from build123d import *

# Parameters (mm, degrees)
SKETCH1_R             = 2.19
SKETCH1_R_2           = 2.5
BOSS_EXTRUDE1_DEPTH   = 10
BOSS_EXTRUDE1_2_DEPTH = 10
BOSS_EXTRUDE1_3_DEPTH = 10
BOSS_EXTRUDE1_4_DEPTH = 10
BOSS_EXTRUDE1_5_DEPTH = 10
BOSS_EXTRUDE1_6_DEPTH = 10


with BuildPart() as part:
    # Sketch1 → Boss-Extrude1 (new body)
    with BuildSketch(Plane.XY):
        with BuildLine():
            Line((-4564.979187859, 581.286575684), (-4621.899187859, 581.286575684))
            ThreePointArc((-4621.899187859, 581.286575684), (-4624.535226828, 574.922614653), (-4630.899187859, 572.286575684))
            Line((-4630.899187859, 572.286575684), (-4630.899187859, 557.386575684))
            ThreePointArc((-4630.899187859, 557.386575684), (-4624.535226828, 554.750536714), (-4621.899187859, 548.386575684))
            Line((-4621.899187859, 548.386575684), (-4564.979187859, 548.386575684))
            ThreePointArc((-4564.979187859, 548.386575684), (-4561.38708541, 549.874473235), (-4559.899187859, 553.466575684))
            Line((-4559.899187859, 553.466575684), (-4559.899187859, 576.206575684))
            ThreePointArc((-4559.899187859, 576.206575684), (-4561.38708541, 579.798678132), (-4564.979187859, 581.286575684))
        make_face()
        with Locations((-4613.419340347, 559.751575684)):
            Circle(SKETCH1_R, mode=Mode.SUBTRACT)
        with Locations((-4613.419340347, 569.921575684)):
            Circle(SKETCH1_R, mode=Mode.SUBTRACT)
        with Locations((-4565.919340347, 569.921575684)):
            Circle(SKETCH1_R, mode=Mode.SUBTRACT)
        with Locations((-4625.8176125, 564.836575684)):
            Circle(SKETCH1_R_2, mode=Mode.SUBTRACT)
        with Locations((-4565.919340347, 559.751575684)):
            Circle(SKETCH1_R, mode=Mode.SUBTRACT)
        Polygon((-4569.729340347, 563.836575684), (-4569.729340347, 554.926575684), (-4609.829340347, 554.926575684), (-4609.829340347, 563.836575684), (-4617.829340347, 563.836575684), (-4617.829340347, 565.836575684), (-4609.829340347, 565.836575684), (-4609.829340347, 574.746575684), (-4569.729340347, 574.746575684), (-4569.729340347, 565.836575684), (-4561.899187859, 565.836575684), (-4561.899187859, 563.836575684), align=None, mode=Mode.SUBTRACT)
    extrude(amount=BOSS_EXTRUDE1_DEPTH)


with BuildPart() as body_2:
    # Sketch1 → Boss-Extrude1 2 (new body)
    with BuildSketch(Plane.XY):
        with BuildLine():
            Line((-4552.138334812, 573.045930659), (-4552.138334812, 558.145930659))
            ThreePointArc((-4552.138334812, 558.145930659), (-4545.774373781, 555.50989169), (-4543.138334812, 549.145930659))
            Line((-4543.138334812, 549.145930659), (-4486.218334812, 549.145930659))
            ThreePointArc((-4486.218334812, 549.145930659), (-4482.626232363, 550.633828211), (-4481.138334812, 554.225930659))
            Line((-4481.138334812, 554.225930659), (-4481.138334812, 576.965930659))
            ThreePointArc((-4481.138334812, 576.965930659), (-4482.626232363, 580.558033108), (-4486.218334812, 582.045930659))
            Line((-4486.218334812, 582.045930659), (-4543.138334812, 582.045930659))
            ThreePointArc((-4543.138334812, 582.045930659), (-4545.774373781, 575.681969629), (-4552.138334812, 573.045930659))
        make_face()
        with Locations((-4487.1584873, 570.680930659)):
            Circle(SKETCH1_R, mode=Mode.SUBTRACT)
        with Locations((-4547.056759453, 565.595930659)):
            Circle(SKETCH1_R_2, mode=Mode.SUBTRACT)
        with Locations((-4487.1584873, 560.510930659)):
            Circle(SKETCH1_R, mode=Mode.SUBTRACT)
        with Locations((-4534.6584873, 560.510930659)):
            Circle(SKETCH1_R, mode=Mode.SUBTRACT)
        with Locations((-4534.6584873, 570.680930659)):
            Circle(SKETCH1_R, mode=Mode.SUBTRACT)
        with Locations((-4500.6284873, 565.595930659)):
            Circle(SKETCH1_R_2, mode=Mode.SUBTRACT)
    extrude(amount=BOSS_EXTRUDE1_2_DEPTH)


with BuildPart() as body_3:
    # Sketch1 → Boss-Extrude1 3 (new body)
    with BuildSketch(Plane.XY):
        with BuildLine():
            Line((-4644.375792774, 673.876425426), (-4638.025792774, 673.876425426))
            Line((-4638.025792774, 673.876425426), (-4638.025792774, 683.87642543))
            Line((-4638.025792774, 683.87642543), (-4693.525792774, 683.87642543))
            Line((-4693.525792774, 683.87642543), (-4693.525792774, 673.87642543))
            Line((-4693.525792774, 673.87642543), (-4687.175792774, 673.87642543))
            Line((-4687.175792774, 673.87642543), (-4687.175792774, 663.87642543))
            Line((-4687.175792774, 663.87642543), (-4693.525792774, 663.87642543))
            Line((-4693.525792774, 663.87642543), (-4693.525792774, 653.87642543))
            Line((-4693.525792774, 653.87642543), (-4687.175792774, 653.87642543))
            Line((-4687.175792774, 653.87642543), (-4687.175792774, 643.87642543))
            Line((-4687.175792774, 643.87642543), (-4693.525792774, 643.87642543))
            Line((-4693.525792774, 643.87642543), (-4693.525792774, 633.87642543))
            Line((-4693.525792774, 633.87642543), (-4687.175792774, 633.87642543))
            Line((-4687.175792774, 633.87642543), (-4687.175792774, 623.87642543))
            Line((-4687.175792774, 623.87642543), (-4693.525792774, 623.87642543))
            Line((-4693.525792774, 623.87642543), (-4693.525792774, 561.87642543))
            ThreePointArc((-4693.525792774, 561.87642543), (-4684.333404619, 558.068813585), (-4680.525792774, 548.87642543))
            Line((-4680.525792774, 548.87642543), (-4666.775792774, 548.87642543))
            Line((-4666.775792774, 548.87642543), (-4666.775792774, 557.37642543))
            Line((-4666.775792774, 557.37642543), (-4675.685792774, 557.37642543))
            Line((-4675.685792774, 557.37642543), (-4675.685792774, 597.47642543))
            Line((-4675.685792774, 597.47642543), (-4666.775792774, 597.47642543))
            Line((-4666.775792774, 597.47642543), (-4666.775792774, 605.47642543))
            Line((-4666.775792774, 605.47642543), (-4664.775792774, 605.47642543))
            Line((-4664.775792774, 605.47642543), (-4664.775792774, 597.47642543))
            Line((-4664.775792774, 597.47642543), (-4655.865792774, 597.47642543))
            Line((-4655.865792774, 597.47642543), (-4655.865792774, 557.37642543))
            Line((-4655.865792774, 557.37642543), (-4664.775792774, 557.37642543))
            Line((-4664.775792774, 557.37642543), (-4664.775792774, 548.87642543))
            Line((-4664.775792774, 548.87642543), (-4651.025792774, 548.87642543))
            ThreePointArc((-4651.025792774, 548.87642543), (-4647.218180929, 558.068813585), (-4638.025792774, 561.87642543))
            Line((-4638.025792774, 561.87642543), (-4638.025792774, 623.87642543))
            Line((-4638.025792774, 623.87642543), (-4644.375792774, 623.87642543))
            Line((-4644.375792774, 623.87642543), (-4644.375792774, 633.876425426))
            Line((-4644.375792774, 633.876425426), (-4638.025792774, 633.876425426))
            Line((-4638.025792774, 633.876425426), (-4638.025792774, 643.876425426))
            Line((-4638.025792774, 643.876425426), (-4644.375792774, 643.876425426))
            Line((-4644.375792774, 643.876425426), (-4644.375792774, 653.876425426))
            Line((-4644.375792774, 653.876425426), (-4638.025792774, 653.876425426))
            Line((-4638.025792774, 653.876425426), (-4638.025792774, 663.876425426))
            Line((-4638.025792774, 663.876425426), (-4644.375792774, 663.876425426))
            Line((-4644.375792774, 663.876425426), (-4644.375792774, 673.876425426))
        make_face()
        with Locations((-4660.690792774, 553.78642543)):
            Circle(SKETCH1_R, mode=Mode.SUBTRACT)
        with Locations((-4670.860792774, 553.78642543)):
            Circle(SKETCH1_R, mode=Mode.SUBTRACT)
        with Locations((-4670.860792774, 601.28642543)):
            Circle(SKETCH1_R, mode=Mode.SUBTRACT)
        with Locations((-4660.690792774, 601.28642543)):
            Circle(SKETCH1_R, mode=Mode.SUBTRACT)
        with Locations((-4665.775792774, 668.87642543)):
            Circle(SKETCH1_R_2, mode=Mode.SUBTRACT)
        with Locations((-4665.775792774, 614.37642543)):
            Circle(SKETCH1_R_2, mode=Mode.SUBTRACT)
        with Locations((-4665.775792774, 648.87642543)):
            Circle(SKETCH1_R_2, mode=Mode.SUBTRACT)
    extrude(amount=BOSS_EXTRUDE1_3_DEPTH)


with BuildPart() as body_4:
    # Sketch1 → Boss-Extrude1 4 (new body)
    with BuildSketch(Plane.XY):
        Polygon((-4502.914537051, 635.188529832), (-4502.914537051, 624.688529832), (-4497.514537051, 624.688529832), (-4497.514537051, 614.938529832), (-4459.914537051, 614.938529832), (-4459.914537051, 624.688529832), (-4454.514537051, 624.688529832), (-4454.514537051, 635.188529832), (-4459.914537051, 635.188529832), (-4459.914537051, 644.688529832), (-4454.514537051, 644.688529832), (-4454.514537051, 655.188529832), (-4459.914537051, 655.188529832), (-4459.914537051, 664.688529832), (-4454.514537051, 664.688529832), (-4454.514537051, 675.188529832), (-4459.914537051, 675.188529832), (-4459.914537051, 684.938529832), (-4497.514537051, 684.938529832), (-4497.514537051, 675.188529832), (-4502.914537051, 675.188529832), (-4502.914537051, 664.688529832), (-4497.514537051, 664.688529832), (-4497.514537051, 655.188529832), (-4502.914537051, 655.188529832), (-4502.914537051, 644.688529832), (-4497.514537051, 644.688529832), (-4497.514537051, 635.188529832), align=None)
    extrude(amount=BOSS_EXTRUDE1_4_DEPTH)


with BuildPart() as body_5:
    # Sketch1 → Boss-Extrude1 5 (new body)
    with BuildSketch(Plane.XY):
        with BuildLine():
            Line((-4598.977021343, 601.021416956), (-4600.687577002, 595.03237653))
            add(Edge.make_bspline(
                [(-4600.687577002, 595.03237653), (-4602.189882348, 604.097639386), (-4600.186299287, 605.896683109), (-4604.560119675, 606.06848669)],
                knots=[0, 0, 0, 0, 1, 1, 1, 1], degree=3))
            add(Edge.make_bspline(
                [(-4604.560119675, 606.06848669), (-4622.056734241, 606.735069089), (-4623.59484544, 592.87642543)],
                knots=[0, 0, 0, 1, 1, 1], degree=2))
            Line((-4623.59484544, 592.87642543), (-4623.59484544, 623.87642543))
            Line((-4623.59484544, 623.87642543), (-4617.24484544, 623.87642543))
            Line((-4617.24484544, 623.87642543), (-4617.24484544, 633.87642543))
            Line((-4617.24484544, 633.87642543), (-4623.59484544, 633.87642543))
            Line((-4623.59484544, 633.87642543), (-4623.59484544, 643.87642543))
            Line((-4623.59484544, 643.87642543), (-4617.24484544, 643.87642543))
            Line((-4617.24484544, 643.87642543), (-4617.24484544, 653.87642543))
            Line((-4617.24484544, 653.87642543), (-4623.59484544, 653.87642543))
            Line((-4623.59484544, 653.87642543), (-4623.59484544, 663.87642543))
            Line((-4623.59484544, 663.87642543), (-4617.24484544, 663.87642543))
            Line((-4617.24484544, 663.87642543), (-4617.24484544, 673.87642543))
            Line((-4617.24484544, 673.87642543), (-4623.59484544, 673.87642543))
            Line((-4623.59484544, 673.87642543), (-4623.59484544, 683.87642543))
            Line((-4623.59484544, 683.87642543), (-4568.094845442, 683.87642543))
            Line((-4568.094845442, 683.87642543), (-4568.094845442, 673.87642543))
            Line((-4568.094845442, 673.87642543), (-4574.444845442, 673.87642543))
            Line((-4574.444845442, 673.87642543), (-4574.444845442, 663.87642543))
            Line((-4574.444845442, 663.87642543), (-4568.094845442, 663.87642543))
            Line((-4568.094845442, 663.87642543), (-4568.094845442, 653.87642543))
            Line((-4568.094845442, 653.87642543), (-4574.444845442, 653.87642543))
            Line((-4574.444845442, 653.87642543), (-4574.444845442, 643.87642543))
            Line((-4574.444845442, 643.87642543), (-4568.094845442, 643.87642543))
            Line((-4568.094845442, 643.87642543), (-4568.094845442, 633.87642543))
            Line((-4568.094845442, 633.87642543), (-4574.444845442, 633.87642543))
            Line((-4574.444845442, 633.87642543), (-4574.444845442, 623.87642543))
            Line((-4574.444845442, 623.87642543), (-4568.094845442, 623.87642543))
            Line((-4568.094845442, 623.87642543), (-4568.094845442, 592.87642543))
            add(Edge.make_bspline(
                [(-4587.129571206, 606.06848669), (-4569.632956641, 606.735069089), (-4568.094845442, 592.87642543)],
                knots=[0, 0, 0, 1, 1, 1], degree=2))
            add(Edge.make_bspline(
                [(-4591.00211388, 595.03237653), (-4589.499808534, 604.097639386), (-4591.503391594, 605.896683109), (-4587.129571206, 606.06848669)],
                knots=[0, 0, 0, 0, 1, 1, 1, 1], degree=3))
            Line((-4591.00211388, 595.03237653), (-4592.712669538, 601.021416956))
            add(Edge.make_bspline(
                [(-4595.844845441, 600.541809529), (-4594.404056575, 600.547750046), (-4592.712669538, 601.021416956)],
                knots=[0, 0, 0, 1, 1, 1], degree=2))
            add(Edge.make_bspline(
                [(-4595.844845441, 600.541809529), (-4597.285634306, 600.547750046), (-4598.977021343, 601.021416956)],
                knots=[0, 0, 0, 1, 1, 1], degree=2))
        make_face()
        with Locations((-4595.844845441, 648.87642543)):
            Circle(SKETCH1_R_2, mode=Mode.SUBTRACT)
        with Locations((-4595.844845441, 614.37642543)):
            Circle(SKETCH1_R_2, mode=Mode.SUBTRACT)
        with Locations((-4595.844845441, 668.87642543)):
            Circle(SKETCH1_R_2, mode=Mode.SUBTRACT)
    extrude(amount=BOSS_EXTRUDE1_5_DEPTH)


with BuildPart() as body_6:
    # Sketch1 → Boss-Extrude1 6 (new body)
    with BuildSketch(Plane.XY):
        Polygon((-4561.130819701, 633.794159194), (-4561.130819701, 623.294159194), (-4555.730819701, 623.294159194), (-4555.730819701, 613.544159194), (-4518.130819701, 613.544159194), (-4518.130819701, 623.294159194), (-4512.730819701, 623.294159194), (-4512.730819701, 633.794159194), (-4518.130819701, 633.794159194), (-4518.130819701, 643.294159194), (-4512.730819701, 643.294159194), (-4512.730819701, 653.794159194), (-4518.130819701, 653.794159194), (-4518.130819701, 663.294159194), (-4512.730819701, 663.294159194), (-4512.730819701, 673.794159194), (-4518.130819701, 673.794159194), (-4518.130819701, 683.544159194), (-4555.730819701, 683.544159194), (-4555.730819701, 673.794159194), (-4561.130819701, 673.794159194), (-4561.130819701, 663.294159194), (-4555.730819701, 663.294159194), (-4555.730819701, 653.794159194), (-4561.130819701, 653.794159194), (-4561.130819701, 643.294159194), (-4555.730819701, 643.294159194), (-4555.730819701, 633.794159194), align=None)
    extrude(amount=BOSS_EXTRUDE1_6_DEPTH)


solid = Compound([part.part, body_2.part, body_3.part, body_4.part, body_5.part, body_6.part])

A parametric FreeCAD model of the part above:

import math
import FreeCAD as App
import Part
import Sketcher
from FreeCAD import Vector

doc = App.newDocument("Part")
body = doc.addObject("PartDesign::Body", "Body")

sketch1 = body.newObject("Sketcher::SketchObject", "Sketch")
sketch1.AttachmentSupport = (doc.getObject("XY_Plane"), [""])
sketch1.MapMode = "FlatFace"
sketch1.addGeometry([
    Part.LineSegment(Vector(-4565, 581.3, 0), Vector(-4621.9, 581.3, 0)),
    Part.ArcOfCircle(Part.Circle(Vector(-4630.9, 581.3, 0), Vector(0, 0, 1), 9), math.radians(-90), math.radians(0)),
    Part.LineSegment(Vector(-4630.9, 572.3, 0), Vector(-4630.9, 557.4, 0)),
    Part.ArcOfCircle(Part.Circle(Vector(-4630.9, 548.4, 0), Vector(0, 0, 1), 9), math.radians(0), math.radians(90)),
    Part.LineSegment(Vector(-4621.9, 548.4, 0), Vector(-4565, 548.4, 0)),
    Part.ArcOfCircle(Part.Circle(Vector(-4565, 553.5, 0), Vector(0, 0, 1), 5.1), math.radians(-90), math.radians(0)),
    Part.LineSegment(Vector(-4559.9, 553.5, 0), Vector(-4559.9, 576.2, 0)),
    Part.ArcOfCircle(Part.Circle(Vector(-4565, 576.2, 0), Vector(0, 0, 1), 5.1), math.radians(0), math.radians(90)),
    Part.Circle(Vector(-4613.4, 559.8, 0), Vector(0, 0, 1), 2.2),
    Part.Circle(Vector(-4625.8, 564.8, 0), Vector(0, 0, 1), 2.5),
    Part.Circle(Vector(-4565.9, 559.8, 0), Vector(0, 0, 1), 2.2),
    Part.Circle(Vector(-4613.4, 569.9, 0), Vector(0, 0, 1), 2.2),
    Part.LineSegment(Vector(-4561.9, 563.8, 0), Vector(-4569.7, 563.8, 0)),
    Part.LineSegment(Vector(-4569.7, 563.8, 0), Vector(-4569.7, 554.9, 0)),
    Part.LineSegment(Vector(-4569.7, 554.9, 0), Vector(-4609.8, 554.9, 0)),
    Part.LineSegment(Vector(-4609.8, 554.9, 0), Vector(-4609.8, 563.8, 0)),
    Part.LineSegment(Vector(-4609.8, 563.8, 0), Vector(-4617.8, 563.8, 0)),
    Part.LineSegment(Vector(-4617.8, 563.8, 0), Vector(-4617.8, 565.8, 0)),
    Part.LineSegment(Vector(-4617.8, 565.8, 0), Vector(-4609.8, 565.8, 0)),
    Part.LineSegment(Vector(-4609.8, 565.8, 0), Vector(-4609.8, 574.7, 0)),
    Part.LineSegment(Vector(-4609.8, 574.7, 0), Vector(-4569.7, 574.7, 0)),
    Part.LineSegment(Vector(-4569.7, 574.7, 0), Vector(-4569.7, 565.8, 0)),
    Part.LineSegment(Vector(-4569.7, 565.8, 0), Vector(-4561.9, 565.8, 0)),
    Part.LineSegment(Vector(-4561.9, 565.8, 0), Vector(-4561.9, 563.8, 0)),
    Part.Circle(Vector(-4565.9, 569.9, 0), Vector(0, 0, 1), 2.2),
], False)
sketch1.addConstraint([
    Sketcher.Constraint("Coincident", 0, 2, 1, 2),
    Sketcher.Constraint("Coincident", 1, 1, 2, 1),
    Sketcher.Constraint("Coincident", 2, 2, 3, 2),
    Sketcher.Constraint("Coincident", 3, 1, 4, 1),
    Sketcher.Constraint("Tangent", 4, 2, 5, 1),
    Sketcher.Constraint("Tangent", 5, 2, 6, 1),
    Sketcher.Constraint("Tangent", 6, 2, 7, 1),
    Sketcher.Constraint("Tangent", 7, 2, 0, 1),
    Sketcher.Constraint("Coincident", 12, 2, 13, 1),
    Sketcher.Constraint("Coincident", 13, 2, 14, 1),
    Sketcher.Constraint("Coincident", 14, 2, 15, 1),
    Sketcher.Constraint("Coincident", 15, 2, 16, 1),
    Sketcher.Constraint("Coincident", 16, 2, 17, 1),
    Sketcher.Constraint("Coincident", 17, 2, 18, 1),
    Sketcher.Constraint("Coincident", 18, 2, 19, 1),
    Sketcher.Constraint("Coincident", 19, 2, 20, 1),
    Sketcher.Constraint("Coincident", 20, 2, 21, 1),
    Sketcher.Constraint("Coincident", 21, 2, 22, 1),
    Sketcher.Constraint("Coincident", 22, 2, 23, 1),
    Sketcher.Constraint("Coincident", 23, 2, 12, 1),
    Sketcher.Constraint("Horizontal", 0),
    Sketcher.Constraint("Vertical", 2),
    Sketcher.Constraint("Horizontal", 4),
    Sketcher.Constraint("Vertical", 6),
    Sketcher.Constraint("Horizontal", 12),
    Sketcher.Constraint("Vertical", 13),
    Sketcher.Constraint("Horizontal", 14),
    Sketcher.Constraint("Vertical", 15),
    Sketcher.Constraint("Horizontal", 16),
    Sketcher.Constraint("Vertical", 17),
    Sketcher.Constraint("Horizontal", 18),
    Sketcher.Constraint("Vertical", 19),
    Sketcher.Constraint("Horizontal", 20),
    Sketcher.Constraint("Vertical", 21),
    Sketcher.Constraint("Horizontal", 22),
    Sketcher.Constraint("Vertical", 23),
    Sketcher.Constraint("Equal", 1, 3),
    Sketcher.Constraint("Equal", 5, 7),
    Sketcher.Constraint("Equal", 8, 10),
    Sketcher.Constraint("Equal", 10, 11),
    Sketcher.Constraint("Equal", 11, 24),
    Sketcher.Constraint("Horizontal", 8, 3, 10, 3),
    Sketcher.Constraint("Horizontal", 11, 3, 24, 3),
    Sketcher.Constraint("Horizontal", 1, 3, 0, 2),
    Sketcher.Constraint("Horizontal", 12, 2, 15, 2),
    Sketcher.Constraint("Horizontal", 18, 2, 21, 2),
    Sketcher.Constraint("Vertical", 1, 3, 3, 3),
    Sketcher.Constraint("Vertical", 8, 3, 11, 3),
    Sketcher.Constraint("Vertical", 10, 3, 24, 3),
    Sketcher.Constraint("Vertical", 3, 3, 1, 1),
    Sketcher.Constraint("Vertical", 15, 2, 18, 2),
    Sketcher.Constraint("Vertical", 13, 2, 20, 2),
    Sketcher.Constraint("Equal", 15, 19),
    Sketcher.Constraint("Diameter", 9, 5.0),
    Sketcher.Constraint("Radius", 1, 9.0),
    Sketcher.Constraint("Diameter", 8, 4.38),
    Sketcher.Constraint("DistanceX", 16, 2, 16, 1, 8.0),
    Sketcher.Constraint("DistanceY", 17, 1, 17, 2, 2.0),
    Sketcher.Constraint("Radius", 5, 5.08),
    Sketcher.Constraint("DistanceX", 14, 2, 14, 1, 40.1),
    Sketcher.Constraint("DistanceY", 2, 2, 2, 1, 14.9),
    Sketcher.Constraint("DistanceY", 3, 1, 2, 2, 9.0),
    Sketcher.Constraint("DistanceY", 15, 2, 9, 3, 1.0),
    Sketcher.Constraint("DistanceX", 22, 2, 6, 2, 2.0),
    Sketcher.Constraint("DistanceX", 0, 2, 0, 1, 56.92),
    Sketcher.Constraint("DistanceY", 13, 2, 13, 1, 8.91),
    Sketcher.Constraint("DistanceX", 8, 3, 10, 3, 47.5),
    Sketcher.Constraint("DistanceY", 9, 3, 1, 3, 16.45),
    Sketcher.Constraint("DistanceY", 8, 3, 11, 3, 10.17),
    Sketcher.Constraint("DistanceX", 12, 2, 10, 3, 3.81),
    Sketcher.Constraint("DistanceY", 3, 3, 8, 3, 11.365),
    Sketcher.Constraint("DistanceX", 12, 2, 12, 1, 7.830152),
    Sketcher.Constraint("DistanceX", 8, 3, -1, 1, 4613.41934),
    Sketcher.Constraint("DistanceY", -1, 1, 1, 3, 581.286576),
    Sketcher.Constraint("DistanceX", 9, 3, -1, 1, 4625.817612),
])
pad1 = body.newObject("PartDesign::Pad", "Pad")
pad1.Profile = sketch1
pad1.Length = 10
body2 = doc.addObject("PartDesign::Body", "Body001")

sketch2 = body2.newObject("Sketcher::SketchObject", "Sketch001")
sketch2.AttachmentSupport = (doc.getObject("XY_Plane001"), [""])
sketch2.MapMode = "FlatFace"
sketch2.addGeometry([
    Part.LineSegment(Vector(-4552.1, 573, 0), Vector(-4552.1, 558.1, 0)),
    Part.ArcOfCircle(Part.Circle(Vector(-4552.1, 549.1, 0), Vector(0, 0, 1), 9), math.radians(0), math.radians(90)),
    Part.LineSegment(Vector(-4543.1, 549.1, 0), Vector(-4486.2, 549.1, 0)),
    Part.ArcOfCircle(Part.Circle(Vector(-4486.2, 554.2, 0), Vector(0, 0, 1), 5.1), math.radians(-90), math.radians(0)),
    Part.LineSegment(Vector(-4481.1, 554.2, 0), Vector(-4481.1, 577, 0)),
    Part.ArcOfCircle(Part.Circle(Vector(-4486.2, 577, 0), Vector(0, 0, 1), 5.1), math.radians(0), math.radians(90)),
    Part.LineSegment(Vector(-4486.2, 582, 0), Vector(-4543.1, 582, 0)),
    Part.ArcOfCircle(Part.Circle(Vector(-4552.1, 582, 0), Vector(0, 0, 1), 9), math.radians(-90), math.radians(0)),
    Part.Circle(Vector(-4534.7, 560.5, 0), Vector(0, 0, 1), 2.2),
    Part.Circle(Vector(-4487.2, 560.5, 0), Vector(0, 0, 1), 2.2),
    Part.Circle(Vector(-4547.1, 565.6, 0), Vector(0, 0, 1), 2.5),
    Part.Circle(Vector(-4534.7, 570.7, 0), Vector(0, 0, 1), 2.2),
    Part.Circle(Vector(-4500.6, 565.6, 0), Vector(0, 0, 1), 2.5),
    Part.Circle(Vector(-4487.2, 570.7, 0), Vector(0, 0, 1), 2.2),
], False)
sketch2.addConstraint([
    Sketcher.Constraint("Coincident", 0, 2, 1, 2),
    Sketcher.Constraint("Coincident", 1, 1, 2, 1),
    Sketcher.Constraint("Tangent", 2, 2, 3, 1),
    Sketcher.Constraint("Tangent", 3, 2, 4, 1),
    Sketcher.Constraint("Tangent", 4, 2, 5, 1),
    Sketcher.Constraint("Tangent", 5, 2, 6, 1),
    Sketcher.Constraint("Coincident", 6, 2, 7, 2),
    Sketcher.Constraint("Coincident", 7, 1, 0, 1),
    Sketcher.Constraint("Vertical", 0),
    Sketcher.Constraint("Horizontal", 2),
    Sketcher.Constraint("Vertical", 4),
    Sketcher.Constraint("Horizontal", 6),
    Sketcher.Constraint("Equal", 3, 5),
    Sketcher.Constraint("Equal", 1, 7),
    Sketcher.Constraint("Equal", 8, 9),
    Sketcher.Constraint("Equal", 9, 11),
    Sketcher.Constraint("Equal", 10, 12),
    Sketcher.Constraint("Equal", 11, 13),
    Sketcher.Constraint("Horizontal", 8, 3, 9, 3),
    Sketcher.Constraint("Horizontal", 10, 3, 12, 3),
    Sketcher.Constraint("Horizontal", 11, 3, 13, 3),
    Sketcher.Constraint("Horizontal", 7, 3, 5, 2),
    Sketcher.Constraint("Vertical", 1, 3, 7, 3),
    Sketcher.Constraint("Vertical", 8, 3, 11, 3),
    Sketcher.Constraint("Vertical", 9, 3, 13, 3),
    Sketcher.Constraint("Vertical", 7, 3, 0, 2),
    Sketcher.Constraint("Diameter", 10, 5.0),
    Sketcher.Constraint("Radius", 1, 9.0),
    Sketcher.Constraint("Diameter", 8, 4.38),
    Sketcher.Constraint("Radius", 3, 5.08),
    Sketcher.Constraint("DistanceY", 0, 2, 0, 1, 14.9),
    Sketcher.Constraint("DistanceY", 1, 1, 0, 2, 9.0),
    Sketcher.Constraint("DistanceX", 2, 1, 2, 2, 56.92),
    Sketcher.Constraint("DistanceX", 8, 3, 9, 3, 47.5),
    Sketcher.Constraint("DistanceY", 1, 3, 10, 3, 16.45),
    Sketcher.Constraint("DistanceY", 8, 3, 11, 3, 10.17),
    Sketcher.Constraint("DistanceX", 12, 3, 9, 3, 13.47),
    Sketcher.Constraint("DistanceY", 1, 3, 8, 3, 11.365),
    Sketcher.Constraint("DistanceY", -1, 1, 1, 3, 549.145931),
    Sketcher.Constraint("DistanceX", 10, 3, -1, 1, 4547.056759),
    Sketcher.Constraint("DistanceX", 1, 3, -1, 1, 4552.138335),
    Sketcher.Constraint("DistanceX", 8, 3, -1, 1, 4534.658487),
])
pad2 = body2.newObject("PartDesign::Pad", "Pad001")
pad2.Profile = sketch2
pad2.Length = 10
body3 = doc.addObject("PartDesign::Body", "Body002")

sketch3 = body3.newObject("Sketcher::SketchObject", "Sketch002")
sketch3.AttachmentSupport = (doc.getObject("XY_Plane002"), [""])
sketch3.MapMode = "FlatFace"
sketch3.addGeometry([
    Part.LineSegment(Vector(-4644.4, 673.9, 0), Vector(-4638, 673.9, 0)),
    Part.LineSegment(Vector(-4638, 673.9, 0), Vector(-4638, 683.9, 0)),
    Part.LineSegment(Vector(-4638, 683.9, 0), Vector(-4693.5, 683.9, 0)),
    Part.LineSegment(Vector(-4693.5, 683.9, 0), Vector(-4693.5, 673.9, 0)),
    Part.LineSegment(Vector(-4693.5, 673.9, 0), Vector(-4687.2, 673.9, 0)),
    Part.LineSegment(Vector(-4687.2, 673.9, 0), Vector(-4687.2, 663.9, 0)),
    Part.LineSegment(Vector(-4687.2, 663.9, 0), Vector(-4693.5, 663.9, 0)),
    Part.LineSegment(Vector(-4693.5, 663.9, 0), Vector(-4693.5, 653.9, 0)),
    Part.LineSegment(Vector(-4693.5, 653.9, 0), Vector(-4687.2, 653.9, 0)),
    Part.LineSegment(Vector(-4687.2, 653.9, 0), Vector(-4687.2, 643.9, 0)),
    Part.LineSegment(Vector(-4687.2, 643.9, 0), Vector(-4693.5, 643.9, 0)),
    Part.LineSegment(Vector(-4693.5, 643.9, 0), Vector(-4693.5, 633.9, 0)),
    Part.LineSegment(Vector(-4693.5, 633.9, 0), Vector(-4687.2, 633.9, 0)),
    Part.LineSegment(Vector(-4687.2, 633.9, 0), Vector(-4687.2, 623.9, 0)),
    Part.LineSegment(Vector(-4687.2, 623.9, 0), Vector(-4693.5, 623.9, 0)),
    Part.LineSegment(Vector(-4693.5, 623.9, 0), Vector(-4693.5, 561.9, 0)),
    Part.ArcOfCircle(Part.Circle(Vector(-4693.5, 548.9, 0), Vector(0, 0, 1), 13), math.radians(0), math.radians(90)),
    Part.LineSegment(Vector(-4680.5, 548.9, 0), Vector(-4666.8, 548.9, 0)),
    Part.LineSegment(Vector(-4666.8, 548.9, 0), Vector(-4666.8, 557.4, 0)),
    Part.LineSegment(Vector(-4666.8, 557.4, 0), Vector(-4675.7, 557.4, 0)),
    Part.LineSegment(Vector(-4675.7, 557.4, 0), Vector(-4675.7, 597.5, 0)),
    Part.LineSegment(Vector(-4675.7, 597.5, 0), Vector(-4666.8, 597.5, 0)),
    Part.LineSegment(Vector(-4666.8, 597.5, 0), Vector(-4666.8, 605.5, 0)),
    Part.LineSegment(Vector(-4666.8, 605.5, 0), Vector(-4664.8, 605.5, 0)),
    Part.LineSegment(Vector(-4664.8, 605.5, 0), Vector(-4664.8, 597.5, 0)),
    Part.LineSegment(Vector(-4664.8, 597.5, 0), Vector(-4655.9, 597.5, 0)),
    Part.LineSegment(Vector(-4655.9, 597.5, 0), Vector(-4655.9, 557.4, 0)),
    Part.LineSegment(Vector(-4655.9, 557.4, 0), Vector(-4664.8, 557.4, 0)),
    Part.LineSegment(Vector(-4664.8, 557.4, 0), Vector(-4664.8, 548.9, 0)),
    Part.LineSegment(Vector(-4664.8, 548.9, 0), Vector(-4651, 548.9, 0)),
    Part.ArcOfCircle(Part.Circle(Vector(-4638, 548.9, 0), Vector(0, 0, 1), 13), math.radians(90), math.radians(180)),
    Part.LineSegment(Vector(-4638, 561.9, 0), Vector(-4638, 623.9, 0)),
    Part.LineSegment(Vector(-4638, 623.9, 0), Vector(-4644.4, 623.9, 0)),
    Part.LineSegment(Vector(-4644.4, 623.9, 0), Vector(-4644.4, 633.9, 0)),
    Part.LineSegment(Vector(-4644.4, 633.9, 0), Vector(-4638, 633.9, 0)),
    Part.LineSegment(Vector(-4638, 633.9, 0), Vector(-4638, 643.9, 0)),
    Part.LineSegment(Vector(-4638, 643.9, 0), Vector(-4644.4, 643.9, 0)),
    Part.LineSegment(Vector(-4644.4, 643.9, 0), Vector(-4644.4, 653.9, 0)),
    Part.LineSegment(Vector(-4644.4, 653.9, 0), Vector(-4638, 653.9, 0)),
    Part.LineSegment(Vector(-4638, 653.9, 0), Vector(-4638, 663.9, 0)),
    Part.LineSegment(Vector(-4638, 663.9, 0), Vector(-4644.4, 663.9, 0)),
    Part.LineSegment(Vector(-4644.4, 663.9, 0), Vector(-4644.4, 673.9, 0)),
    Part.Circle(Vector(-4670.9, 553.8, 0), Vector(0, 0, 1), 2.2),
    Part.Circle(Vector(-4670.9, 601.3, 0), Vector(0, 0, 1), 2.2),
    Part.Circle(Vector(-4660.7, 553.8, 0), Vector(0, 0, 1), 2.2),
    Part.Circle(Vector(-4660.7, 601.3, 0), Vector(0, 0, 1), 2.2),
    Part.Circle(Vector(-4665.8, 614.4, 0), Vector(0, 0, 1), 2.5),
    Part.Circle(Vector(-4665.8, 648.9, 0), Vector(0, 0, 1), 2.5),
    Part.Circle(Vector(-4665.8, 668.9, 0), Vector(0, 0, 1), 2.5),
], False)
sketch3.addConstraint([
    Sketcher.Constraint("Coincident", 0, 2, 1, 1),
    Sketcher.Constraint("Coincident", 1, 2, 2, 1),
    Sketcher.Constraint("Coincident", 2, 2, 3, 1),
    Sketcher.Constraint("Coincident", 3, 2, 4, 1),
    Sketcher.Constraint("Coincident", 4, 2, 5, 1),
    Sketcher.Constraint("Coincident", 5, 2, 6, 1),
    Sketcher.Constraint("Coincident", 6, 2, 7, 1),
    Sketcher.Constraint("Coincident", 7, 2, 8, 1),
    Sketcher.Constraint("Coincident", 8, 2, 9, 1),
    Sketcher.Constraint("Coincident", 9, 2, 10, 1),
    Sketcher.Constraint("Coincident", 10, 2, 11, 1),
    Sketcher.Constraint("Coincident", 11, 2, 12, 1),
    Sketcher.Constraint("Coincident", 12, 2, 13, 1),
    Sketcher.Constraint("Coincident", 13, 2, 14, 1),
    Sketcher.Constraint("Coincident", 14, 2, 15, 1),
    Sketcher.Constraint("Coincident", 15, 2, 16, 2),
    Sketcher.Constraint("Coincident", 16, 1, 17, 1),
    Sketcher.Constraint("Coincident", 17, 2, 18, 1),
    Sketcher.Constraint("Coincident", 18, 2, 19, 1),
    Sketcher.Constraint("Coincident", 19, 2, 20, 1),
    Sketcher.Constraint("Coincident", 20, 2, 21, 1),
    Sketcher.Constraint("Coincident", 21, 2, 22, 1),
    Sketcher.Constraint("Coincident", 22, 2, 23, 1),
    Sketcher.Constraint("Coincident", 23, 2, 24, 1),
    Sketcher.Constraint("Coincident", 24, 2, 25, 1),
    Sketcher.Constraint("Coincident", 25, 2, 26, 1),
    Sketcher.Constraint("Coincident", 26, 2, 27, 1),
    Sketcher.Constraint("Coincident", 27, 2, 28, 1),
    Sketcher.Constraint("Coincident", 28, 2, 29, 1),
    Sketcher.Constraint("Coincident", 29, 2, 30, 2),
    Sketcher.Constraint("Coincident", 30, 1, 31, 1),
    Sketcher.Constraint("Coincident", 31, 2, 32, 1),
    Sketcher.Constraint("Coincident", 32, 2, 33, 1),
    Sketcher.Constraint("Coincident", 33, 2, 34, 1),
    Sketcher.Constraint("Coincident", 34, 2, 35, 1),
    Sketcher.Constraint("Coincident", 35, 2, 36, 1),
    Sketcher.Constraint("Coincident", 36, 2, 37, 1),
    Sketcher.Constraint("Coincident", 37, 2, 38, 1),
    Sketcher.Constraint("Coincident", 38, 2, 39, 1),
    Sketcher.Constraint("Coincident", 39, 2, 40, 1),
    Sketcher.Constraint("Coincident", 40, 2, 41, 1),
    Sketcher.Constraint("Coincident", 41, 2, 0, 1),
    Sketcher.Constraint("Horizontal", 0),
    Sketcher.Constraint("Vertical", 1),
    Sketcher.Constraint("Horizontal", 2),
    Sketcher.Constraint("Vertical", 3),
    Sketcher.Constraint("Horizontal", 4),
    Sketcher.Constraint("Vertical", 5),
    Sketcher.Constraint("Horizontal", 6),
    Sketcher.Constraint("Vertical", 7),
    Sketcher.Constraint("Horizontal", 8),
    Sketcher.Constraint("Vertical", 9),
    Sketcher.Constraint("Horizontal", 10),
    Sketcher.Constraint("Vertical", 11),
    Sketcher.Constraint("Horizontal", 12),
    Sketcher.Constraint("Vertical", 13),
    Sketcher.Constraint("Horizontal", 14),
    Sketcher.Constraint("Vertical", 15),
    Sketcher.Constraint("Horizontal", 17),
    Sketcher.Constraint("Vertical", 18),
    Sketcher.Constraint("Horizontal", 19),
    Sketcher.Constraint("Vertical", 20),
    Sketcher.Constraint("Horizontal", 21),
    Sketcher.Constraint("Vertical", 22),
    Sketcher.Constraint("Horizontal", 23),
    Sketcher.Constraint("Vertical", 24),
    Sketcher.Constraint("Horizontal", 25),
    Sketcher.Constraint("Vertical", 26),
    Sketcher.Constraint("Horizontal", 27),
    Sketcher.Constraint("Vertical", 28),
    Sketcher.Constraint("Horizontal", 29),
    Sketcher.Constraint("Vertical", 31),
    Sketcher.Constraint("Horizontal", 32),
    Sketcher.Constraint("Vertical", 33),
    Sketcher.Constraint("Horizontal", 34),
    Sketcher.Constraint("Vertical", 35),
    Sketcher.Constraint("Horizontal", 36),
    Sketcher.Constraint("Vertical", 37),
    Sketcher.Constraint("Horizontal", 38),
    Sketcher.Constraint("Vertical", 39),
    Sketcher.Constraint("Horizontal", 40),
    Sketcher.Constraint("Vertical", 41),
    Sketcher.Constraint("Equal", 16, 30),
    Sketcher.Constraint("Equal", 42, 43),
    Sketcher.Constraint("Equal", 43, 44),
    Sketcher.Constraint("Equal", 44, 45),
    Sketcher.Constraint("Equal", 46, 47),
    Sketcher.Constraint("Equal", 47, 48),
    Sketcher.Constraint("Horizontal", 16, 3, 30, 3),
    Sketcher.Constraint("Horizontal", 42, 3, 44, 3),
    Sketcher.Constraint("Horizontal", 43, 3, 45, 3),
    Sketcher.Constraint("Horizontal", 0, 2, 3, 2),
    Sketcher.Constraint("Horizontal", 30, 3, 16, 1),
    Sketcher.Constraint("Horizontal", 21, 2, 24, 2),
    Sketcher.Constraint("Horizontal", 19, 2, 26, 2),
    Sketcher.Constraint("Horizontal", 17, 2, 28, 2),
    Sketcher.Constraint("Horizontal", 14, 2, 31, 2),
    Sketcher.Constraint("Horizontal", 12, 2, 33, 2),
    Sketcher.Constraint("Horizontal", 10, 2, 35, 2),
    Sketcher.Constraint("Horizontal", 8, 2, 37, 2),
    Sketcher.Constraint("Horizontal", 6, 2, 39, 2),
    Sketcher.Constraint("Vertical", 42, 3, 43, 3),
    Sketcher.Constraint("Vertical", 44, 3, 45, 3),
    Sketcher.Constraint("Vertical", 46, 3, 47, 3),
    Sketcher.Constraint("Vertical", 47, 3, 48, 3),
    Sketcher.Constraint("Vertical", 30, 3, 0, 2),
    Sketcher.Constraint("Vertical", 16, 3, 2, 2),
    Sketcher.Constraint("Vertical", 3, 2, 6, 2),
    Sketcher.Constraint("Vertical", 5, 2, 8, 2),
    Sketcher.Constraint("Vertical", 7, 2, 10, 2),
    Sketcher.Constraint("Vertical", 9, 2, 12, 2),
    Sketcher.Constraint("Vertical", 11, 2, 14, 2),
    Sketcher.Constraint("Vertical", 18, 2, 21, 2),
    Sketcher.Constraint("Vertical", 24, 2, 27, 2),
    Sketcher.Constraint("Vertical", 1, 2, 30, 1),
    Sketcher.Constraint("Vertical", 31, 2, 34, 2),
    Sketcher.Constraint("Vertical", 33, 2, 36, 2),
    Sketcher.Constraint("Vertical", 35, 2, 38, 2),
    Sketcher.Constraint("Vertical", 37, 2, 40, 2),
    Sketcher.Constraint("Equal", 0, 4),
    Sketcher.Constraint("Equal", 21, 25),
    Sketcher.Constraint("Equal", 17, 29),
    Sketcher.Constraint("Equal", 3, 5),
    Sketcher.Constraint("Equal", 5, 7),
    Sketcher.Constraint("Equal", 7, 9),
    Sketcher.Constraint("Equal", 9, 11),
    Sketcher.Constraint("Equal", 11, 13),
    Sketcher.Constraint("Diameter", 46, 5.0),
    Sketcher.Constraint("Radius", 16, 13.0),
    Sketcher.Constraint("Diameter", 42, 4.38),
    Sketcher.Constraint("DistanceX", 23, 1, 23, 2, 2.0),
    Sketcher.Constraint("DistanceY", 1, 1, 1, 2, 10.0),
    Sketcher.Constraint("DistanceY", 15, 2, 15, 1, 62.0),
    Sketcher.Constraint("DistanceY", 22, 1, 22, 2, 8.0),
    Sketcher.Constraint("DistanceX", 2, 2, 2, 1, 55.5),
    Sketcher.Constraint("DistanceY", 18, 1, 18, 2, 8.5),
    Sketcher.Constraint("DistanceY", 20, 1, 20, 2, 40.1),
    Sketcher.Constraint("DistanceY", 47, 3, 48, 3, 20.0),
    Sketcher.Constraint("DistanceY", 48, 3, 0, 2, 5.0),
    Sketcher.Constraint("DistanceX", 21, 2, 46, 3, 1.0),
    Sketcher.Constraint("DistanceX", 0, 1, 0, 2, 6.35),
    Sketcher.Constraint("DistanceX", 19, 2, 19, 1, 8.91),
    Sketcher.Constraint("DistanceY", 42, 3, 43, 3, 47.5),
    Sketcher.Constraint("DistanceY", 16, 3, 46, 3, 65.5),
    Sketcher.Constraint("DistanceY", 16, 3, 42, 3, 4.91),
    Sketcher.Constraint("DistanceX", 42, 3, 44, 3, 10.17),
    Sketcher.Constraint("DistanceX", 16, 3, 42, 3, 22.665),
    Sketcher.Constraint("DistanceX", 16, 3, -1, 1, 4693.525793),
    Sketcher.Constraint("DistanceY", -1, 1, 16, 3, 548.876425),
])
pad3 = body3.newObject("PartDesign::Pad", "Pad002")
pad3.Profile = sketch3
pad3.Length = 10
body4 = doc.addObject("PartDesign::Body", "Body003")

sketch4 = body4.newObject("Sketcher::SketchObject", "Sketch003")
sketch4.AttachmentSupport = (doc.getObject("XY_Plane003"), [""])
sketch4.MapMode = "FlatFace"
sketch4.addGeometry([
    Part.LineSegment(Vector(-4503, 635, 0), Vector(-4503, 625, 0)),
    Part.LineSegment(Vector(-4503, 625, 0), Vector(-4498, 625, 0)),
    Part.LineSegment(Vector(-4498, 625, 0), Vector(-4498, 615, 0)),
    Part.LineSegment(Vector(-4498, 615, 0), Vector(-4460, 615, 0)),
    Part.LineSegment(Vector(-4460, 615, 0), Vector(-4460, 625, 0)),
    Part.LineSegment(Vector(-4460, 625, 0), Vector(-4455, 625, 0)),
    Part.LineSegment(Vector(-4455, 625, 0), Vector(-4455, 635, 0)),
    Part.LineSegment(Vector(-4455, 635, 0), Vector(-4460, 635, 0)),
    Part.LineSegment(Vector(-4460, 635, 0), Vector(-4460, 645, 0)),
    Part.LineSegment(Vector(-4460, 645, 0), Vector(-4455, 645, 0)),
    Part.LineSegment(Vector(-4455, 645, 0), Vector(-4455, 655, 0)),
    Part.LineSegment(Vector(-4455, 655, 0), Vector(-4460, 655, 0)),
    Part.LineSegment(Vector(-4460, 655, 0), Vector(-4460, 665, 0)),
    Part.LineSegment(Vector(-4460, 665, 0), Vector(-4455, 665, 0)),
    Part.LineSegment(Vector(-4455, 665, 0), Vector(-4455, 675, 0)),
    Part.LineSegment(Vector(-4455, 675, 0), Vector(-4460, 675, 0)),
    Part.LineSegment(Vector(-4460, 675, 0), Vector(-4460, 685, 0)),
    Part.LineSegment(Vector(-4460, 685, 0), Vector(-4498, 685, 0)),
    Part.LineSegment(Vector(-4498, 685, 0), Vector(-4498, 675, 0)),
    Part.LineSegment(Vector(-4498, 675, 0), Vector(-4503, 675, 0)),
    Part.LineSegment(Vector(-4503, 675, 0), Vector(-4503, 665, 0)),
    Part.LineSegment(Vector(-4503, 665, 0), Vector(-4498, 665, 0)),
    Part.LineSegment(Vector(-4498, 665, 0), Vector(-4498, 655, 0)),
    Part.LineSegment(Vector(-4498, 655, 0), Vector(-4503, 655, 0)),
    Part.LineSegment(Vector(-4503, 655, 0), Vector(-4503, 645, 0)),
    Part.LineSegment(Vector(-4503, 645, 0), Vector(-4498, 645, 0)),
    Part.LineSegment(Vector(-4498, 645, 0), Vector(-4498, 635, 0)),
    Part.LineSegment(Vector(-4498, 635, 0), Vector(-4503, 635, 0)),
], False)
sketch4.addConstraint([
    Sketcher.Constraint("Coincident", 0, 2, 1, 1),
    Sketcher.Constraint("Coincident", 1, 2, 2, 1),
    Sketcher.Constraint("Coincident", 2, 2, 3, 1),
    Sketcher.Constraint("Coincident", 3, 2, 4, 1),
    Sketcher.Constraint("Coincident", 4, 2, 5, 1),
    Sketcher.Constraint("Coincident", 5, 2, 6, 1),
    Sketcher.Constraint("Coincident", 6, 2, 7, 1),
    Sketcher.Constraint("Coincident", 7, 2, 8, 1),
    Sketcher.Constraint("Coincident", 8, 2, 9, 1),
    Sketcher.Constraint("Coincident", 9, 2, 10, 1),
    Sketcher.Constraint("Coincident", 10, 2, 11, 1),
    Sketcher.Constraint("Coincident", 11, 2, 12, 1),
    Sketcher.Constraint("Coincident", 12, 2, 13, 1),
    Sketcher.Constraint("Coincident", 13, 2, 14, 1),
    Sketcher.Constraint("Coincident", 14, 2, 15, 1),
    Sketcher.Constraint("Coincident", 15, 2, 16, 1),
    Sketcher.Constraint("Coincident", 16, 2, 17, 1),
    Sketcher.Constraint("Coincident", 17, 2, 18, 1),
    Sketcher.Constraint("Coincident", 18, 2, 19, 1),
    Sketcher.Constraint("Coincident", 19, 2, 20, 1),
    Sketcher.Constraint("Coincident", 20, 2, 21, 1),
    Sketcher.Constraint("Coincident", 21, 2, 22, 1),
    Sketcher.Constraint("Coincident", 22, 2, 23, 1),
    Sketcher.Constraint("Coincident", 23, 2, 24, 1),
    Sketcher.Constraint("Coincident", 24, 2, 25, 1),
    Sketcher.Constraint("Coincident", 25, 2, 26, 1),
    Sketcher.Constraint("Coincident", 26, 2, 27, 1),
    Sketcher.Constraint("Coincident", 27, 2, 0, 1),
    Sketcher.Constraint("Vertical", 0),
    Sketcher.Constraint("Horizontal", 1),
    Sketcher.Constraint("Vertical", 2),
    Sketcher.Constraint("Horizontal", 3),
    Sketcher.Constraint("Vertical", 4),
    Sketcher.Constraint("Horizontal", 5),
    Sketcher.Constraint("Vertical", 6),
    Sketcher.Constraint("Horizontal", 7),
    Sketcher.Constraint("Vertical", 8),
    Sketcher.Constraint("Horizontal", 9),
    Sketcher.Constraint("Vertical", 10),
    Sketcher.Constraint("Horizontal", 11),
    Sketcher.Constraint("Vertical", 12),
    Sketcher.Constraint("Horizontal", 13),
    Sketcher.Constraint("Vertical", 14),
    Sketcher.Constraint("Horizontal", 15),
    Sketcher.Constraint("Vertical", 16),
    Sketcher.Constraint("Horizontal", 17),
    Sketcher.Constraint("Vertical", 18),
    Sketcher.Constraint("Horizontal", 19),
    Sketcher.Constraint("Vertical", 20),
    Sketcher.Constraint("Horizontal", 21),
    Sketcher.Constraint("Vertical", 22),
    Sketcher.Constraint("Horizontal", 23),
    Sketcher.Constraint("Vertical", 24),
    Sketcher.Constraint("Horizontal", 25),
    Sketcher.Constraint("Vertical", 26),
    Sketcher.Constraint("Horizontal", 27),
    Sketcher.Constraint("Horizontal", 1, 2, 4, 2),
    Sketcher.Constraint("Horizontal", 15, 2, 18, 2),
    Sketcher.Constraint("Horizontal", 13, 2, 20, 2),
    Sketcher.Constraint("Horizontal", 11, 2, 22, 2),
    Sketcher.Constraint("Horizontal", 9, 2, 24, 2),
    Sketcher.Constraint("Horizontal", 7, 2, 26, 2),
    Sketcher.Constraint("Vertical", 4, 2, 7, 2),
    Sketcher.Constraint("Vertical", 6, 2, 9, 2),
    Sketcher.Constraint("Vertical", 8, 2, 11, 2),
    Sketcher.Constraint("Vertical", 10, 2, 13, 2),
    Sketcher.Constraint("Vertical", 12, 2, 15, 2),
    Sketcher.Constraint("Vertical", 2, 2, 17, 2),
    Sketcher.Constraint("Vertical", 0, 2, 19, 2),
    Sketcher.Constraint("Vertical", 18, 2, 21, 2),
    Sketcher.Constraint("Vertical", 20, 2, 23, 2),
    Sketcher.Constraint("Vertical", 22, 2, 25, 2),
    Sketcher.Constraint("Equal", 1, 5),
    Sketcher.Constraint("Equal", 6, 10),
    Sketcher.Constraint("Equal", 8, 12),
    Sketcher.Constraint("Equal", 10, 14),
    Sketcher.Constraint("Equal", 4, 16),
    Sketcher.Constraint("DistanceX", 1, 1, 1, 2, 5.4),
    Sketcher.Constraint("DistanceX", 3, 1, 3, 2, 37.6),
    Sketcher.Constraint("DistanceY", 0, 2, 0, 1, 10.5),
    Sketcher.Constraint("DistanceY", 8, 1, 8, 2, 9.5),
    Sketcher.Constraint("DistanceY", 2, 2, 2, 1, 9.75),
    Sketcher.Constraint("DistanceY", -1, 1, 0, 2, 624.68853),
    Sketcher.Constraint("DistanceX", 0, 2, -1, 1, 4502.914537),
])
pad4 = body4.newObject("PartDesign::Pad", "Pad003")
pad4.Profile = sketch4
pad4.Length = 10
body5 = doc.addObject("PartDesign::Body", "Body004")

sketch5 = body5.newObject("Sketcher::SketchObject", "Sketch004")
sketch5.AttachmentSupport = (doc.getObject("XY_Plane004"), [""])
sketch5.MapMode = "FlatFace"
sketch5.addGeometry([
    Part.LineSegment(Vector(-4600.687577, 595.032377, 0), Vector(-4598.977021, 601.021417, 0)),
    Part.BSplineCurve([Vector(-4595.844845, 600.54181, 0), Vector(-4597.285634, 600.54775, 0), Vector(-4598.977021, 601.021417, 0)], [3, 3], [0, 1], False, 2, [1, 1, 1], False),
    Part.BSplineCurve([Vector(-4595.844845, 600.54181, 0), Vector(-4594.404057, 600.54775, 0), Vector(-4592.71267, 601.021417, 0)], [3, 3], [0, 1], False, 2, [1, 1, 1], False),
    Part.LineSegment(Vector(-4592.71267, 601.021417, 0), Vector(-4591.002114, 595.032377, 0)),
    Part.BSplineCurve([Vector(-4591.002114, 595.032377, 0), Vector(-4589.499809, 604.097639, 0), Vector(-4591.503392, 605.896683, 0), Vector(-4587.129571, 606.068487, 0)], [4, 4], [0, 1], False, 3, [1, 1, 1, 1], False),
    Part.BSplineCurve([Vector(-4587.129571, 606.068487, 0), Vector(-4569.632957, 606.735069, 0), Vector(-4568.094845, 592.876425, 0)], [3, 3], [0, 1], False, 2, [1, 1, 1], False),
    Part.LineSegment(Vector(-4568.094845, 592.876425, 0), Vector(-4568.094845, 623.876425, 0)),
    Part.LineSegment(Vector(-4568.094845, 623.876425, 0), Vector(-4574.444845, 623.876425, 0)),
    Part.LineSegment(Vector(-4574.444845, 623.876425, 0), Vector(-4574.444845, 633.876425, 0)),
    Part.LineSegment(Vector(-4574.444845, 633.876425, 0), Vector(-4568.094845, 633.876425, 0)),
    Part.LineSegment(Vector(-4568.094845, 633.876425, 0), Vector(-4568.094845, 643.876425, 0)),
    Part.LineSegment(Vector(-4568.094845, 643.876425, 0), Vector(-4574.444845, 643.876425, 0)),
    Part.LineSegment(Vector(-4574.444845, 643.876425, 0), Vector(-4574.444845, 653.876425, 0)),
    Part.LineSegment(Vector(-4574.444845, 653.876425, 0), Vector(-4568.094845, 653.876425, 0)),
    Part.LineSegment(Vector(-4568.094845, 653.876425, 0), Vector(-4568.094845, 663.876425, 0)),
    Part.LineSegment(Vector(-4568.094845, 663.876425, 0), Vector(-4574.444845, 663.876425, 0)),
    Part.LineSegment(Vector(-4574.444845, 663.876425, 0), Vector(-4574.444845, 673.876425, 0)),
    Part.LineSegment(Vector(-4574.444845, 673.876425, 0), Vector(-4568.094845, 673.876425, 0)),
    Part.LineSegment(Vector(-4568.094845, 673.876425, 0), Vector(-4568.094845, 683.876425, 0)),
    Part.LineSegment(Vector(-4568.094845, 683.876425, 0), Vector(-4623.594845, 683.876425, 0)),
    Part.LineSegment(Vector(-4623.594845, 683.876425, 0), Vector(-4623.594845, 673.876425, 0)),
    Part.LineSegment(Vector(-4623.594845, 673.876425, 0), Vector(-4617.244845, 673.876425, 0)),
    Part.LineSegment(Vector(-4617.244845, 673.876425, 0), Vector(-4617.244845, 663.876425, 0)),
    Part.LineSegment(Vector(-4617.244845, 663.876425, 0), Vector(-4623.594845, 663.876425, 0)),
    Part.LineSegment(Vector(-4623.594845, 663.876425, 0), Vector(-4623.594845, 653.876425, 0)),
    Part.LineSegment(Vector(-4623.594845, 653.876425, 0), Vector(-4617.244845, 653.876425, 0)),
    Part.LineSegment(Vector(-4617.244845, 653.876425, 0), Vector(-4617.244845, 643.876425, 0)),
    Part.LineSegment(Vector(-4617.244845, 643.876425, 0), Vector(-4623.594845, 643.876425, 0)),
    Part.LineSegment(Vector(-4623.594845, 643.876425, 0), Vector(-4623.594845, 633.876425, 0)),
    Part.LineSegment(Vector(-4623.594845, 633.876425, 0), Vector(-4617.244845, 633.876425, 0)),
    Part.LineSegment(Vector(-4617.244845, 633.876425, 0), Vector(-4617.244845, 623.876425, 0)),
    Part.LineSegment(Vector(-4617.244845, 623.876425, 0), Vector(-4623.594845, 623.876425, 0)),
    Part.LineSegment(Vector(-4623.594845, 623.876425, 0), Vector(-4623.594845, 592.876425, 0)),
    Part.BSplineCurve([Vector(-4604.56012, 606.068487, 0), Vector(-4622.056734, 606.735069, 0), Vector(-4623.594845, 592.876425, 0)], [3, 3], [0, 1], False, 2, [1, 1, 1], False),
    Part.BSplineCurve([Vector(-4600.687577, 595.032377, 0), Vector(-4602.189882, 604.097639, 0), Vector(-4600.186299, 605.896683, 0), Vector(-4604.56012, 606.068487, 0)], [4, 4], [0, 1], False, 3, [1, 1, 1, 1], False),
    Part.Circle(Vector(-4595.844845, 614.376425, 0), Vector(0, 0, 1), 2.5),
    Part.Circle(Vector(-4595.844845, 648.876425, 0), Vector(0, 0, 1), 2.5),
    Part.Circle(Vector(-4595.844845, 668.876425, 0), Vector(0, 0, 1), 2.5),
], False)
sketch5.addConstraint([
    Sketcher.Constraint("Block", 1),
    Sketcher.Constraint("Block", 2),
    Sketcher.Constraint("Block", 4),
    Sketcher.Constraint("Block", 5),
    Sketcher.Constraint("Block", 33),
    Sketcher.Constraint("Block", 34),
    Sketcher.Constraint("Coincident", 0, 2, 1, 2),
    Sketcher.Constraint("Coincident", 2, 2, 3, 1),
    Sketcher.Constraint("Coincident", 3, 2, 4, 1),
    Sketcher.Constraint("Coincident", 5, 2, 6, 1),
    Sketcher.Constraint("Coincident", 6, 2, 7, 1),
    Sketcher.Constraint("Coincident", 7, 2, 8, 1),
    Sketcher.Constraint("Coincident", 8, 2, 9, 1),
    Sketcher.Constraint("Coincident", 9, 2, 10, 1),
    Sketcher.Constraint("Coincident", 10, 2, 11, 1),
    Sketcher.Constraint("Coincident", 11, 2, 12, 1),
    Sketcher.Constraint("Coincident", 12, 2, 13, 1),
    Sketcher.Constraint("Coincident", 13, 2, 14, 1),
    Sketcher.Constraint("Coincident", 14, 2, 15, 1),
    Sketcher.Constraint("Coincident", 15, 2, 16, 1),
    Sketcher.Constraint("Coincident", 16, 2, 17, 1),
    Sketcher.Constraint("Coincident", 17, 2, 18, 1),
    Sketcher.Constraint("Coincident", 18, 2, 19, 1),
    Sketcher.Constraint("Coincident", 19, 2, 20, 1),
    Sketcher.Constraint("Coincident", 20, 2, 21, 1),
    Sketcher.Constraint("Coincident", 21, 2, 22, 1),
    Sketcher.Constraint("Coincident", 22, 2, 23, 1),
    Sketcher.Constraint("Coincident", 23, 2, 24, 1),
    Sketcher.Constraint("Coincident", 24, 2, 25, 1),
    Sketcher.Constraint("Coincident", 25, 2, 26, 1),
    Sketcher.Constraint("Coincident", 26, 2, 27, 1),
    Sketcher.Constraint("Coincident", 27, 2, 28, 1),
    Sketcher.Constraint("Coincident", 28, 2, 29, 1),
    Sketcher.Constraint("Coincident", 29, 2, 30, 1),
    Sketcher.Constraint("Coincident", 30, 2, 31, 1),
    Sketcher.Constraint("Coincident", 31, 2, 32, 1),
    Sketcher.Constraint("Coincident", 32, 2, 33, 2),
    Sketcher.Constraint("Coincident", 34, 1, 0, 1),
    Sketcher.Constraint("Vertical", 6),
    Sketcher.Constraint("Horizontal", 7),
    Sketcher.Constraint("Vertical", 8),
    Sketcher.Constraint("Horizontal", 9),
    Sketcher.Constraint("Vertical", 10),
    Sketcher.Constraint("Horizontal", 11),
    Sketcher.Constraint("Vertical", 12),
    Sketcher.Constraint("Horizontal", 13),
    Sketcher.Constraint("Vertical", 14),
    Sketcher.Constraint("Horizontal", 15),
    Sketcher.Constraint("Vertical", 16),
    Sketcher.Constraint("Horizontal", 17),
    Sketcher.Constraint("Vertical", 18),
    Sketcher.Constraint("Horizontal", 19),
    Sketcher.Constraint("Vertical", 20),
    Sketcher.Constraint("Horizontal", 21),
    Sketcher.Constraint("Vertical", 22),
    Sketcher.Constraint("Horizontal", 23),
    Sketcher.Constraint("Vertical", 24),
    Sketcher.Constraint("Horizontal", 25),
    Sketcher.Constraint("Vertical", 26),
    Sketcher.Constraint("Horizontal", 27),
    Sketcher.Constraint("Vertical", 28),
    Sketcher.Constraint("Horizontal", 29),
    Sketcher.Constraint("Vertical", 30),
    Sketcher.Constraint("Horizontal", 31),
    Sketcher.Constraint("Vertical", 32),
    Sketcher.Constraint("Equal", 35, 36),
    Sketcher.Constraint("Equal", 36, 37),
    Sketcher.Constraint("Horizontal", 17, 2, 20, 2),
    Sketcher.Constraint("Horizontal", 15, 2, 22, 2),
    Sketcher.Constraint("Horizontal", 13, 2, 24, 2),
    Sketcher.Constraint("Horizontal", 11, 2, 26, 2),
    Sketcher.Constraint("Horizontal", 9, 2, 28, 2),
    Sketcher.Constraint("Horizontal", 7, 2, 30, 2),
    Sketcher.Constraint("Vertical", 35, 3, 36, 3),
    Sketcher.Constraint("Vertical", 36, 3, 37, 3),
    Sketcher.Constraint("Vertical", 6, 2, 9, 2),
    Sketcher.Constraint("Vertical", 8, 2, 11, 2),
    Sketcher.Constraint("Vertical", 10, 2, 13, 2),
    Sketcher.Constraint("Vertical", 12, 2, 15, 2),
    Sketcher.Constraint("Vertical", 14, 2, 17, 2),
    Sketcher.Constraint("Vertical", 20, 2, 23, 2),
    Sketcher.Constraint("Vertical", 22, 2, 25, 2),
    Sketcher.Constraint("Vertical", 24, 2, 27, 2),
    Sketcher.Constraint("Vertical", 26, 2, 29, 2),
    Sketcher.Constraint("Vertical", 28, 2, 31, 2),
    Sketcher.Constraint("Equal", 17, 21),
    Sketcher.Constraint("Equal", 8, 10),
    Sketcher.Constraint("Equal", 10, 12),
    Sketcher.Constraint("Equal", 12, 14),
    Sketcher.Constraint("Equal", 14, 16),
    Sketcher.Constraint("Equal", 16, 18),
    Sketcher.Constraint("Diameter", 35, 5.0),
    Sketcher.Constraint("DistanceY", 6, 1, 6, 2, 31.0),
    Sketcher.Constraint("DistanceY", 8, 1, 8, 2, 10.0),
    Sketcher.Constraint("DistanceY", 36, 3, 37, 3, 20.0),
    Sketcher.Constraint("DistanceY", 6, 2, 36, 3, 25.0),
    Sketcher.Constraint("DistanceX", 7, 2, 7, 1, 6.35),
    Sketcher.Constraint("DistanceY", 35, 3, 36, 3, 34.5),
    Sketcher.Constraint("DistanceX", 35, 3, 7, 2, 21.4),
])
pad5 = body5.newObject("PartDesign::Pad", "Pad004")
pad5.Profile = sketch5
pad5.Length = 10
body6 = doc.addObject("PartDesign::Body", "Body005")

sketch6 = body6.newObject("Sketcher::SketchObject", "Sketch005")
sketch6.AttachmentSupport = (doc.getObject("XY_Plane005"), [""])
sketch6.MapMode = "FlatFace"
sketch6.addGeometry([
    Part.LineSegment(Vector(-4561, 634, 0), Vector(-4561, 623, 0)),
    Part.LineSegment(Vector(-4561, 623, 0), Vector(-4556, 623, 0)),
    Part.LineSegment(Vector(-4556, 623, 0), Vector(-4556, 614, 0)),
    Part.LineSegment(Vector(-4556, 614, 0), Vector(-4518, 614, 0)),
    Part.LineSegment(Vector(-4518, 614, 0), Vector(-4518, 623, 0)),
    Part.LineSegment(Vector(-4518, 623, 0), Vector(-4513, 623, 0)),
    Part.LineSegment(Vector(-4513, 623, 0), Vector(-4513, 634, 0)),
    Part.LineSegment(Vector(-4513, 634, 0), Vector(-4518, 634, 0)),
    Part.LineSegment(Vector(-4518, 634, 0), Vector(-4518, 643, 0)),
    Part.LineSegment(Vector(-4518, 643, 0), Vector(-4513, 643, 0)),
    Part.LineSegment(Vector(-4513, 643, 0), Vector(-4513, 654, 0)),
    Part.LineSegment(Vector(-4513, 654, 0), Vector(-4518, 654, 0)),
    Part.LineSegment(Vector(-4518, 654, 0), Vector(-4518, 663, 0)),
    Part.LineSegment(Vector(-4518, 663, 0), Vector(-4513, 663, 0)),
    Part.LineSegment(Vector(-4513, 663, 0), Vector(-4513, 674, 0)),
    Part.LineSegment(Vector(-4513, 674, 0), Vector(-4518, 674, 0)),
    Part.LineSegment(Vector(-4518, 674, 0), Vector(-4518, 684, 0)),
    Part.LineSegment(Vector(-4518, 684, 0), Vector(-4556, 684, 0)),
    Part.LineSegment(Vector(-4556, 684, 0), Vector(-4556, 674, 0)),
    Part.LineSegment(Vector(-4556, 674, 0), Vector(-4561, 674, 0)),
    Part.LineSegment(Vector(-4561, 674, 0), Vector(-4561, 663, 0)),
    Part.LineSegment(Vector(-4561, 663, 0), Vector(-4556, 663, 0)),
    Part.LineSegment(Vector(-4556, 663, 0), Vector(-4556, 654, 0)),
    Part.LineSegment(Vector(-4556, 654, 0), Vector(-4561, 654, 0)),
    Part.LineSegment(Vector(-4561, 654, 0), Vector(-4561, 643, 0)),
    Part.LineSegment(Vector(-4561, 643, 0), Vector(-4556, 643, 0)),
    Part.LineSegment(Vector(-4556, 643, 0), Vector(-4556, 634, 0)),
    Part.LineSegment(Vector(-4556, 634, 0), Vector(-4561, 634, 0)),
], False)
sketch6.addConstraint([
    Sketcher.Constraint("Coincident", 0, 2, 1, 1),
    Sketcher.Constraint("Coincident", 1, 2, 2, 1),
    Sketcher.Constraint("Coincident", 2, 2, 3, 1),
    Sketcher.Constraint("Coincident", 3, 2, 4, 1),
    Sketcher.Constraint("Coincident", 4, 2, 5, 1),
    Sketcher.Constraint("Coincident", 5, 2, 6, 1),
    Sketcher.Constraint("Coincident", 6, 2, 7, 1),
    Sketcher.Constraint("Coincident", 7, 2, 8, 1),
    Sketcher.Constraint("Coincident", 8, 2, 9, 1),
    Sketcher.Constraint("Coincident", 9, 2, 10, 1),
    Sketcher.Constraint("Coincident", 10, 2, 11, 1),
    Sketcher.Constraint("Coincident", 11, 2, 12, 1),
    Sketcher.Constraint("Coincident", 12, 2, 13, 1),
    Sketcher.Constraint("Coincident", 13, 2, 14, 1),
    Sketcher.Constraint("Coincident", 14, 2, 15, 1),
    Sketcher.Constraint("Coincident", 15, 2, 16, 1),
    Sketcher.Constraint("Coincident", 16, 2, 17, 1),
    Sketcher.Constraint("Coincident", 17, 2, 18, 1),
    Sketcher.Constraint("Coincident", 18, 2, 19, 1),
    Sketcher.Constraint("Coincident", 19, 2, 20, 1),
    Sketcher.Constraint("Coincident", 20, 2, 21, 1),
    Sketcher.Constraint("Coincident", 21, 2, 22, 1),
    Sketcher.Constraint("Coincident", 22, 2, 23, 1),
    Sketcher.Constraint("Coincident", 23, 2, 24, 1),
    Sketcher.Constraint("Coincident", 24, 2, 25, 1),
    Sketcher.Constraint("Coincident", 25, 2, 26, 1),
    Sketcher.Constraint("Coincident", 26, 2, 27, 1),
    Sketcher.Constraint("Coincident", 27, 2, 0, 1),
    Sketcher.Constraint("Vertical", 0),
    Sketcher.Constraint("Horizontal", 1),
    Sketcher.Constraint("Vertical", 2),
    Sketcher.Constraint("Horizontal", 3),
    Sketcher.Constraint("Vertical", 4),
    Sketcher.Constraint("Horizontal", 5),
    Sketcher.Constraint("Vertical", 6),
    Sketcher.Constraint("Horizontal", 7),
    Sketcher.Constraint("Vertical", 8),
    Sketcher.Constraint("Horizontal", 9),
    Sketcher.Constraint("Vertical", 10),
    Sketcher.Constraint("Horizontal", 11),
    Sketcher.Constraint("Vertical", 12),
    Sketcher.Constraint("Horizontal", 13),
    Sketcher.Constraint("Vertical", 14),
    Sketcher.Constraint("Horizontal", 15),
    Sketcher.Constraint("Vertical", 16),
    Sketcher.Constraint("Horizontal", 17),
    Sketcher.Constraint("Vertical", 18),
    Sketcher.Constraint("Horizontal", 19),
    Sketcher.Constraint("Vertical", 20),
    Sketcher.Constraint("Horizontal", 21),
    Sketcher.Constraint("Vertical", 22),
    Sketcher.Constraint("Horizontal", 23),
    Sketcher.Constraint("Vertical", 24),
    Sketcher.Constraint("Horizontal", 25),
    Sketcher.Constraint("Vertical", 26),
    Sketcher.Constraint("Horizontal", 27),
    Sketcher.Constraint("Horizontal", 1, 2, 4, 2),
    Sketcher.Constraint("Horizontal", 15, 2, 18, 2),
    Sketcher.Constraint("Horizontal", 13, 2, 20, 2),
    Sketcher.Constraint("Horizontal", 11, 2, 22, 2),
    Sketcher.Constraint("Horizontal", 9, 2, 24, 2),
    Sketcher.Constraint("Horizontal", 7, 2, 26, 2),
    Sketcher.Constraint("Vertical", 4, 2, 7, 2),
    Sketcher.Constraint("Vertical", 6, 2, 9, 2),
    Sketcher.Constraint("Vertical", 8, 2, 11, 2),
    Sketcher.Constraint("Vertical", 10, 2, 13, 2),
    Sketcher.Constraint("Vertical", 12, 2, 15, 2),
    Sketcher.Constraint("Vertical", 2, 2, 17, 2),
    Sketcher.Constraint("Vertical", 0, 2, 19, 2),
    Sketcher.Constraint("Vertical", 18, 2, 21, 2),
    Sketcher.Constraint("Vertical", 20, 2, 23, 2),
    Sketcher.Constraint("Vertical", 22, 2, 25, 2),
    Sketcher.Constraint("Equal", 1, 5),
    Sketcher.Constraint("Equal", 6, 10),
    Sketcher.Constraint("Equal", 8, 12),
    Sketcher.Constraint("Equal", 10, 14),
    Sketcher.Constraint("Equal", 4, 16),
    Sketcher.Constraint("DistanceX", 1, 1, 1, 2, 5.4),
    Sketcher.Constraint("DistanceX", 3, 1, 3, 2, 37.6),
    Sketcher.Constraint("DistanceY", 0, 2, 0, 1, 10.5),
    Sketcher.Constraint("DistanceY", 8, 1, 8, 2, 9.5),
    Sketcher.Constraint("DistanceY", 2, 2, 2, 1, 9.75),
    Sketcher.Constraint("DistanceX", 0, 2, -1, 1, 4561.13082),
    Sketcher.Constraint("DistanceY", -1, 1, 0, 2, 623.294159),
])
pad6 = body6.newObject("PartDesign::Pad", "Pad005")
pad6.Profile = sketch6
pad6.Length = 10

doc.recompute()
